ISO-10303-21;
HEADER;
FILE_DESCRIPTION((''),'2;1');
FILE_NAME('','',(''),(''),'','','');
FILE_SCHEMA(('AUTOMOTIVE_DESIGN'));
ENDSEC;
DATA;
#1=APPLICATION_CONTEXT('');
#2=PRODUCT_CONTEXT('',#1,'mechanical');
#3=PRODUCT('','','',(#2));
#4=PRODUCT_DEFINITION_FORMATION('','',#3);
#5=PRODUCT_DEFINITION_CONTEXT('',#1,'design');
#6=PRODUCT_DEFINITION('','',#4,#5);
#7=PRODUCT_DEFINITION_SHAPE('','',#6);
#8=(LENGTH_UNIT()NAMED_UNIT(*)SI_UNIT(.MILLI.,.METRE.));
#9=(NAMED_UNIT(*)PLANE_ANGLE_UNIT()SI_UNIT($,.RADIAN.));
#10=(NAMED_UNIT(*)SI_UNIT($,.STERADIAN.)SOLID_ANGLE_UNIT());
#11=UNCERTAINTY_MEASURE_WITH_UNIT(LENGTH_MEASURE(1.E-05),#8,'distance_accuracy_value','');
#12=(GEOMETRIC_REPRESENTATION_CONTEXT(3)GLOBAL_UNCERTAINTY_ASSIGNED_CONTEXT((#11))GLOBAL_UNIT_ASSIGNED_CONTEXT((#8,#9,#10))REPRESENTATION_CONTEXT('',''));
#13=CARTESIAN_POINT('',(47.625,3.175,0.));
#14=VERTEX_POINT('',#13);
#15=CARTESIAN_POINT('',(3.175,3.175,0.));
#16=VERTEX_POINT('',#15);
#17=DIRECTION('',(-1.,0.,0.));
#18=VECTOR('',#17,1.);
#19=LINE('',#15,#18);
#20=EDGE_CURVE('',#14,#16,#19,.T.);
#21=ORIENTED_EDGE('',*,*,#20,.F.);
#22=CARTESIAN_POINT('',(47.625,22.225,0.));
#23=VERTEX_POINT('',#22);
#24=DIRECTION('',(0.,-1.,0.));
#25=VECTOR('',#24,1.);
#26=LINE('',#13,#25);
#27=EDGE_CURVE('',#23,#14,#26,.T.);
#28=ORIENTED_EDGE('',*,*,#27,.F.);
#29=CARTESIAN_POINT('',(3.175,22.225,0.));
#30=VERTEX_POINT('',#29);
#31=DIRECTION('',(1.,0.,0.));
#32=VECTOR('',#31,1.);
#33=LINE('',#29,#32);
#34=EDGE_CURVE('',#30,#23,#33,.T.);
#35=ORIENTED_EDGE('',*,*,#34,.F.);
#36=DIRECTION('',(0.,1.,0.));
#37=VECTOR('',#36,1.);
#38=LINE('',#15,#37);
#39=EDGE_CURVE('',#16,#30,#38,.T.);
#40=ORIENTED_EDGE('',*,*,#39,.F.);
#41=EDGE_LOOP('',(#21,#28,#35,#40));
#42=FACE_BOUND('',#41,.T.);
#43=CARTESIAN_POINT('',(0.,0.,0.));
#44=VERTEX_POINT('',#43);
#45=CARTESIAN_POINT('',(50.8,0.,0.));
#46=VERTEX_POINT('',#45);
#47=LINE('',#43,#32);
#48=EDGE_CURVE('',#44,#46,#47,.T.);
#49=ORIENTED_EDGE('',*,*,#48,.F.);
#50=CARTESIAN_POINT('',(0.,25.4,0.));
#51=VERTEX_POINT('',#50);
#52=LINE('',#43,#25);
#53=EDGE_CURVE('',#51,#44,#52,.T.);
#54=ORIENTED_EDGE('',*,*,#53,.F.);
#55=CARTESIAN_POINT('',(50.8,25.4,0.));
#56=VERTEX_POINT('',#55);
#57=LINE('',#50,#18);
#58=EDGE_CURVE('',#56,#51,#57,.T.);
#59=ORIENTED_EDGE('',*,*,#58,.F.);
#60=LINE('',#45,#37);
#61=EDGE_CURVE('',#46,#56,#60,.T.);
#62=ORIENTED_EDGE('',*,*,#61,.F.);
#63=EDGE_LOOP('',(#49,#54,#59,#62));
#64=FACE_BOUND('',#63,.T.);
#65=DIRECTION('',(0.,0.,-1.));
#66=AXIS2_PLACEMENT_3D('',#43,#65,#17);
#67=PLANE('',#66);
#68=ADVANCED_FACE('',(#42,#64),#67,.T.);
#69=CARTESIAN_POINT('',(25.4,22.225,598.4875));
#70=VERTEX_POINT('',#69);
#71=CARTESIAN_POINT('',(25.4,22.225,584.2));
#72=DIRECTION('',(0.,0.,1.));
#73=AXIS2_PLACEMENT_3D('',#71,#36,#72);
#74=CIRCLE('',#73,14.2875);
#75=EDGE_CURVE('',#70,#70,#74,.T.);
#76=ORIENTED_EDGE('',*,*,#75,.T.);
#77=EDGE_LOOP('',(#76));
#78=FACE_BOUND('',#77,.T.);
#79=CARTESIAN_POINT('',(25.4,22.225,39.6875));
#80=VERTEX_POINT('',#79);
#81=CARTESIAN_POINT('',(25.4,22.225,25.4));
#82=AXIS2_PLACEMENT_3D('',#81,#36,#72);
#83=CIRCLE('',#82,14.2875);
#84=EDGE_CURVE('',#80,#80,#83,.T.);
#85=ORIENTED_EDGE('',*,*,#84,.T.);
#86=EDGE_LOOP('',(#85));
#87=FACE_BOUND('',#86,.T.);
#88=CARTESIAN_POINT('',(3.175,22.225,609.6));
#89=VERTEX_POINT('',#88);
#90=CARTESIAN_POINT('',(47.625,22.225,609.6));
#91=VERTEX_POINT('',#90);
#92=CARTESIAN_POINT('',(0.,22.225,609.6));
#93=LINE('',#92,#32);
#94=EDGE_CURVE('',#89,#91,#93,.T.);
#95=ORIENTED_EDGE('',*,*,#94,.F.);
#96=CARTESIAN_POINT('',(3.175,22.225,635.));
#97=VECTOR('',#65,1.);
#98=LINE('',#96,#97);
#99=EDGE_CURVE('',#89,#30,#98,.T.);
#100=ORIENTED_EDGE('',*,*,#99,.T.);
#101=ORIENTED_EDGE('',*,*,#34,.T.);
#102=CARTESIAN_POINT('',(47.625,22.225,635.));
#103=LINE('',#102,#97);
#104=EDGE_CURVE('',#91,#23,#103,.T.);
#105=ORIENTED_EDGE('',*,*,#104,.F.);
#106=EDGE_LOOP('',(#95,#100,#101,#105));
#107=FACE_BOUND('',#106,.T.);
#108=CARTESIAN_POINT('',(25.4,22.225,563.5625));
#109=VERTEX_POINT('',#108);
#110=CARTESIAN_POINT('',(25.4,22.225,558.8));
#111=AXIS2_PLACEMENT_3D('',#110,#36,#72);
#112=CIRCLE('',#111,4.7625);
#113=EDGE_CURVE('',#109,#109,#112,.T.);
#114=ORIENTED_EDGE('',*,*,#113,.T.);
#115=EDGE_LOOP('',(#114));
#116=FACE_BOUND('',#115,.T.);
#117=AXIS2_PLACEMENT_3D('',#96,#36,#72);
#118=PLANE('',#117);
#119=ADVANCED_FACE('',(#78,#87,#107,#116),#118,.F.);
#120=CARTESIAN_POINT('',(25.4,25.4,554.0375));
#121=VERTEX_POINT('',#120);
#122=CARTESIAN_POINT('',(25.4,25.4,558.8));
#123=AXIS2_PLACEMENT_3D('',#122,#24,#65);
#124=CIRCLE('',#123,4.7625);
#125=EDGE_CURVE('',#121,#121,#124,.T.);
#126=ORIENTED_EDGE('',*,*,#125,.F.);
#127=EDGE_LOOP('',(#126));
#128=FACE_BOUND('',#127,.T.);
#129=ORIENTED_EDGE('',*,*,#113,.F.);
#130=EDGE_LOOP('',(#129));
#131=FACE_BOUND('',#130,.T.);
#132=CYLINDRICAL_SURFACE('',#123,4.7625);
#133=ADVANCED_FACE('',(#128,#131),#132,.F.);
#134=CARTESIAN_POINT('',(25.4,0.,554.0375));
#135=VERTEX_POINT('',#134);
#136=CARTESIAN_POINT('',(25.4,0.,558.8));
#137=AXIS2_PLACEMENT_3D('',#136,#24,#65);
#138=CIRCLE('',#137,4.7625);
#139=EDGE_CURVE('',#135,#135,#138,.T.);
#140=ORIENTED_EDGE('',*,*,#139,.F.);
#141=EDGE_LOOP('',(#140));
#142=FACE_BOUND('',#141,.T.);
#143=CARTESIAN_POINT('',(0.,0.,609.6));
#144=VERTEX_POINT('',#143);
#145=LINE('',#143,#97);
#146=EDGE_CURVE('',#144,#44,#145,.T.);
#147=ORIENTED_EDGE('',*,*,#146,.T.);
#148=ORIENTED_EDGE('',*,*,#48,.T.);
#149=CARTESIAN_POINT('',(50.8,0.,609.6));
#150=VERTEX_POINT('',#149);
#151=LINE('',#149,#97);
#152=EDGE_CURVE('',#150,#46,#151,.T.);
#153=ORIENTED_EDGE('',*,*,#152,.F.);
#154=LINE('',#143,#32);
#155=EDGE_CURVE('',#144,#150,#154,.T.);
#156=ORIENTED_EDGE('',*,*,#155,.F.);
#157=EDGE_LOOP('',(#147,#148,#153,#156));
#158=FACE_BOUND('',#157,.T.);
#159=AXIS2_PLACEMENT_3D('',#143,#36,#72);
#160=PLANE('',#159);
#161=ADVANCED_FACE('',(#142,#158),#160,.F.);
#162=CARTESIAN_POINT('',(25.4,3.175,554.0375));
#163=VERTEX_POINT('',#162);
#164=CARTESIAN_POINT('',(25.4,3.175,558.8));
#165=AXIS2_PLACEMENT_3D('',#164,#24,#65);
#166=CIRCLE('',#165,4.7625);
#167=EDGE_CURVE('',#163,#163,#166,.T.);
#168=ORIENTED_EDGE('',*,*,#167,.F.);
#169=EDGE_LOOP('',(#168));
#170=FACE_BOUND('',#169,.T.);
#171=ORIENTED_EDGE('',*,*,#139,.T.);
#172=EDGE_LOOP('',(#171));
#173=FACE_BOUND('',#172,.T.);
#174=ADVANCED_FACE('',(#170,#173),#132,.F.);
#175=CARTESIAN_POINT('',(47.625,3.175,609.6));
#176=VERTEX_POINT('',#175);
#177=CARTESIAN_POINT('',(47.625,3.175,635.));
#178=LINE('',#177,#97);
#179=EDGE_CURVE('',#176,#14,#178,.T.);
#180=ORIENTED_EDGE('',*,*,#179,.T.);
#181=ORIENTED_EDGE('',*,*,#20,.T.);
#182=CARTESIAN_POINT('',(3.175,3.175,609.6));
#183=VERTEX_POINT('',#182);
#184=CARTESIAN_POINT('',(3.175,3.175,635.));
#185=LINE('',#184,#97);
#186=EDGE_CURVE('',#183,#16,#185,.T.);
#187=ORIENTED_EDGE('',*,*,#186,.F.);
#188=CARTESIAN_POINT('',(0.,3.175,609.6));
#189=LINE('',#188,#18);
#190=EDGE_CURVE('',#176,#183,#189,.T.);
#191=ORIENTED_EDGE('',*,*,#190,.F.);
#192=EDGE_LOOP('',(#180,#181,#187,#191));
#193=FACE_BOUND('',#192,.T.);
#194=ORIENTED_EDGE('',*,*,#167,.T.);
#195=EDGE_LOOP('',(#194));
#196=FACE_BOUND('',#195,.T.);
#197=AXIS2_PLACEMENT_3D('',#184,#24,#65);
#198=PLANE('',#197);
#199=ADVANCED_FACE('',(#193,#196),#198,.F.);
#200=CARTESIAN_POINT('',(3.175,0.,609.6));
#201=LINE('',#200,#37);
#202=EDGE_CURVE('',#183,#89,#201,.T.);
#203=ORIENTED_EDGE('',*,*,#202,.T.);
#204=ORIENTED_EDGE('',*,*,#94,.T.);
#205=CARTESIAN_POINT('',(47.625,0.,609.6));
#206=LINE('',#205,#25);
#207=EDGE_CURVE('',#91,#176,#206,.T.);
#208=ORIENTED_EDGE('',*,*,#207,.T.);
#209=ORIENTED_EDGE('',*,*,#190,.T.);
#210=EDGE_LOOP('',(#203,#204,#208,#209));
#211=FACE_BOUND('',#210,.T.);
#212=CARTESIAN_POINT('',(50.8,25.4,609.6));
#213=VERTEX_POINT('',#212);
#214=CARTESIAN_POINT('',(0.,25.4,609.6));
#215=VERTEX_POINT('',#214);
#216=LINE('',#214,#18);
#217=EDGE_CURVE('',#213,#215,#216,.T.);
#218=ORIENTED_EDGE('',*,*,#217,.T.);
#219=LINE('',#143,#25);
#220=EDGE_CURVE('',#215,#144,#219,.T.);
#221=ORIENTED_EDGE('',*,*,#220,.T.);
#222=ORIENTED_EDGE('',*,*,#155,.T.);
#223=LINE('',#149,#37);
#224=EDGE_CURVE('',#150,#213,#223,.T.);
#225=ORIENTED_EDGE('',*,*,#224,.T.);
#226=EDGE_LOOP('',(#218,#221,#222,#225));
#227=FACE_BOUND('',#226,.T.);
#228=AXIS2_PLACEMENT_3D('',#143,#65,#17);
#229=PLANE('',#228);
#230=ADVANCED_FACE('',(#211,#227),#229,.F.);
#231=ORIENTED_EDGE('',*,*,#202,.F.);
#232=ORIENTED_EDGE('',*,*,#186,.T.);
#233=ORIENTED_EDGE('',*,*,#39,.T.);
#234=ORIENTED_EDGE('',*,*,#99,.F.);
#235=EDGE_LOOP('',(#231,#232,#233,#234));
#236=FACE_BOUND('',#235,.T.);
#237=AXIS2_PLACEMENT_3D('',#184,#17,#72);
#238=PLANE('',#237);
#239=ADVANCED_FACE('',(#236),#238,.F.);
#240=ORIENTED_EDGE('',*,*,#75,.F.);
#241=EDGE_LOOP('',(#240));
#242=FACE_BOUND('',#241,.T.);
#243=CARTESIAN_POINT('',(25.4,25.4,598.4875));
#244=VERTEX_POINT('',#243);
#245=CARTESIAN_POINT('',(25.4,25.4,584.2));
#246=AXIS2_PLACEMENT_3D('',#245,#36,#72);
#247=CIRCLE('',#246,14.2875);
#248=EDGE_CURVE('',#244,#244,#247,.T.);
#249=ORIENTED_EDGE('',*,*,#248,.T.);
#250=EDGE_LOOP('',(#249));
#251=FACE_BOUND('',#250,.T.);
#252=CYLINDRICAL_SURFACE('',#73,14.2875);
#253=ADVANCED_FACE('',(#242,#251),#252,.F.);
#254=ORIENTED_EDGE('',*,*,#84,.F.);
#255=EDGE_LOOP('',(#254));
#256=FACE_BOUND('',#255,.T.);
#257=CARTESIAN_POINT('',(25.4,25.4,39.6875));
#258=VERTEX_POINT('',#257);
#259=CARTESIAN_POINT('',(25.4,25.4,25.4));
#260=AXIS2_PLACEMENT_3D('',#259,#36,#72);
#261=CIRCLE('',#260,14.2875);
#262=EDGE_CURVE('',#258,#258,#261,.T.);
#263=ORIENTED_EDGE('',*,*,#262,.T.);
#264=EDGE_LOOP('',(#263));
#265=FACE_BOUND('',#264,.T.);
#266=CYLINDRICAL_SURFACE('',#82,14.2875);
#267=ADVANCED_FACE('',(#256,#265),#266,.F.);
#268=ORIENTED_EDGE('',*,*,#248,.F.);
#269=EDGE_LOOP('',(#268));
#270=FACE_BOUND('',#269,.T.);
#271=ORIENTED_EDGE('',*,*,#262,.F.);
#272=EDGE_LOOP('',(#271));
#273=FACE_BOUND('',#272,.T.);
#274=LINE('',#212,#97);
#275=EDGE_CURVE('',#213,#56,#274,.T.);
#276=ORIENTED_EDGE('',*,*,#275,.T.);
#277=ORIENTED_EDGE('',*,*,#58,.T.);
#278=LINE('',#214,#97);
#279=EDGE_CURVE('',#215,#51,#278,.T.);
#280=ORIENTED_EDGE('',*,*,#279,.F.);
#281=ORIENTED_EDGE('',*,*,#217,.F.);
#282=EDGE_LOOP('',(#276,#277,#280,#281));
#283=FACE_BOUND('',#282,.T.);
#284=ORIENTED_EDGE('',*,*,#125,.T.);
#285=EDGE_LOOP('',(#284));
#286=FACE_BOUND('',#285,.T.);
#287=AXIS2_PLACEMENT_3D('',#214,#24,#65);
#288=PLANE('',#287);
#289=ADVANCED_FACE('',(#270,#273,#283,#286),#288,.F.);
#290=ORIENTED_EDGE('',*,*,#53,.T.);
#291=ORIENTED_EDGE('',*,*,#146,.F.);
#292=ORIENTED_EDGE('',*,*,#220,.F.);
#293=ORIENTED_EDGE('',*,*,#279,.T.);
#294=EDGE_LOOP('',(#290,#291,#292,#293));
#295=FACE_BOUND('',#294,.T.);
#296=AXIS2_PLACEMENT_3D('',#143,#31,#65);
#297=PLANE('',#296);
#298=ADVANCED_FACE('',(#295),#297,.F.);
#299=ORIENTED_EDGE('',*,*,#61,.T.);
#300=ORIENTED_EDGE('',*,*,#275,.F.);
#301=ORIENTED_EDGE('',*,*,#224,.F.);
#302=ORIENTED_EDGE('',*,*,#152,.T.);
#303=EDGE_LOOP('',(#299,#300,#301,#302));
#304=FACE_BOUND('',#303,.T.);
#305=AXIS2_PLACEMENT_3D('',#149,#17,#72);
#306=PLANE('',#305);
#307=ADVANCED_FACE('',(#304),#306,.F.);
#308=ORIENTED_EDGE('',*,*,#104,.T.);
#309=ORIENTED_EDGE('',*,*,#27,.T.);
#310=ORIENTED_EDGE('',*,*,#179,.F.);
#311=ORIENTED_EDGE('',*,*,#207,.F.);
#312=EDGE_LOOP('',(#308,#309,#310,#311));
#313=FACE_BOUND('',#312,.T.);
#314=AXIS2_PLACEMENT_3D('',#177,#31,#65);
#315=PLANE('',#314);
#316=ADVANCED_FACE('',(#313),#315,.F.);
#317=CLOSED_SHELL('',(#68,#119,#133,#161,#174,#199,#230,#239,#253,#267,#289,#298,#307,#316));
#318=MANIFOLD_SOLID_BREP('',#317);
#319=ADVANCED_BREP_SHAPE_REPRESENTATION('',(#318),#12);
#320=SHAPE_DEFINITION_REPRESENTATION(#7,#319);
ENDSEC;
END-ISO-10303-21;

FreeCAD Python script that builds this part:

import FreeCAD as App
import Part
import Sketcher
from FreeCAD import Vector
Q = App.Units.Quantity

doc = App.newDocument("Part")
body = doc.addObject("PartDesign::Body", "Body")

sketch1 = body.newObject("Sketcher::SketchObject", "Sketch")
sketch1.AttachmentSupport = (doc.getObject("XY_Plane"), [""])
sketch1.MapMode = "FlatFace"
sketch1.addGeometry(Part.LineSegment(Vector(0, 25, 0), Vector(0, 0, 0)), False)
sketch1.addGeometry(Part.LineSegment(Vector(0, 0, 0), Vector(51, 0, 0)), False)
sketch1.addGeometry(Part.LineSegment(Vector(51, 0, 0), Vector(51, 25, 0)), False)
sketch1.addGeometry(Part.LineSegment(Vector(51, 25, 0), Vector(0, 25, 0)), False)
sketch1.addConstraint(Sketcher.Constraint("Coincident", 0, 2, 1, 1))
sketch1.addConstraint(Sketcher.Constraint("Coincident", 1, 2, 2, 1))
sketch1.addConstraint(Sketcher.Constraint("Coincident", 2, 2, 3, 1))
sketch1.addConstraint(Sketcher.Constraint("Coincident", 3, 2, 0, 1))
sketch1.addConstraint(Sketcher.Constraint("Vertical", 0))
sketch1.addConstraint(Sketcher.Constraint("Horizontal", 1))
sketch1.addConstraint(Sketcher.Constraint("Vertical", 2))
sketch1.addConstraint(Sketcher.Constraint("Horizontal", 3))
sketch1.addConstraint(Sketcher.Constraint("Coincident", 0, 2, -1, 1))
sketch1.addConstraint(Sketcher.Constraint("DistanceX", 1, 1, 1, 2, Q("2 in")))
sketch1.addConstraint(Sketcher.Constraint("DistanceY", 0, 2, 0, 1, Q("1 in")))
pad1 = body.newObject("PartDesign::Pad", "Pad")
pad1.Profile = sketch1
pad1.Length = Q("24 in")

sketch2 = body.newObject("Sketcher::SketchObject", "Sketch001")
sketch2.AttachmentSupport = (doc.getObject("XY_Plane"), [""])
sketch2.MapMode = "FlatFace"
sketch2.addGeometry(Part.LineSegment(Vector(48, 22, 0), Vector(48, 3, 0)), False)
sketch2.addGeometry(Part.LineSegment(Vector(48, 3, 0), Vector(3, 3, 0)), False)
sketch2.addGeometry(Part.LineSegment(Vector(3, 3, 0), Vector(3, 22, 0)), False)
sketch2.addGeometry(Part.LineSegment(Vector(3, 22, 0), Vector(48, 22, 0)), False)
sketch2.addConstraint(Sketcher.Constraint("Coincident", 0, 2, 1, 1))
sketch2.addConstraint(Sketcher.Constraint("Coincident", 1, 2, 2, 1))
sketch2.addConstraint(Sketcher.Constraint("Coincident", 2, 2, 3, 1))
sketch2.addConstraint(Sketcher.Constraint("Coincident", 3, 2, 0, 1))
sketch2.addConstraint(Sketcher.Constraint("Vertical", 0))
sketch2.addConstraint(Sketcher.Constraint("Horizontal", 1))
sketch2.addConstraint(Sketcher.Constraint("Vertical", 2))
sketch2.addConstraint(Sketcher.Constraint("Horizontal", 3))
sketch2.addConstraint(Sketcher.Constraint("DistanceX", 1, 2, 1, 1, Q("1.75 in")))
sketch2.addConstraint(Sketcher.Constraint("DistanceY", 0, 2, 0, 1, Q("0.75 in")))
sketch2.addConstraint(Sketcher.Constraint("DistanceX", -1, 1, 0, 2, Q("1.875 in")))
sketch2.addConstraint(Sketcher.Constraint("DistanceY", -1, 1, 0, 2, Q("0.125 in")))
pocket1 = body.newObject("PartDesign::Pocket", "Pocket")
pocket1.Profile = sketch2
pocket1.Length = Q("25 in")
pocket1.Reversed = True

sketch3 = body.newObject("Sketcher::SketchObject", "Sketch002")
sketch3.AttachmentSupport = (doc.getObject("XZ_Plane"), [""])
sketch3.MapMode = "FlatFace"
sketch3.AttachmentOffset = App.Placement(Vector(0, 0, -1 * 25.4), App.Rotation())
sketch3.addGeometry(Part.Circle(Vector(25, 25, 0), Vector(0, 0, 1), 14), False)
sketch3.addConstraint(Sketcher.Constraint("Diameter", 0, Q("1.125 in")))
sketch3.addConstraint(Sketcher.Constraint("DistanceX", -1, 1, 0, 3, Q("1 in")))
sketch3.addConstraint(Sketcher.Constraint("DistanceY", -1, 1, 0, 3, Q("1 in")))
pocket2 = body.newObject("PartDesign::Pocket", "Pocket001")
pocket2.Profile = sketch3
pocket2.Length = Q("0.125 in")
pocket2.Reversed = True

sketch4 = body.newObject("Sketcher::SketchObject", "Sketch003")
sketch4.AttachmentSupport = (doc.getObject("XZ_Plane"), [""])
sketch4.MapMode = "FlatFace"
sketch4.AttachmentOffset = App.Placement(Vector(0, 0, -1 * 25.4), App.Rotation())
sketch4.addGeometry(Part.Circle(Vector(25, 584, 0), Vector(0, 0, 1), 14), False)
sketch4.addConstraint(Sketcher.Constraint("Diameter", 0, Q("1.125 in")))
sketch4.addConstraint(Sketcher.Constraint("DistanceX", -1, 1, 0, 3, Q("1 in")))
sketch4.addConstraint(Sketcher.Constraint("DistanceY", -1, 1, 0, 3, Q("23 in")))
pocket3 = body.newObject("PartDesign::Pocket", "Pocket002")
pocket3.Profile = sketch4
pocket3.Length = Q("0.125 in")
pocket3.Reversed = True

sketch5 = body.newObject("Sketcher::SketchObject", "Sketch004")
sketch5.AttachmentSupport = (doc.getObject("XZ_Plane"), [""])
sketch5.MapMode = "FlatFace"
sketch5.addGeometry(Part.Circle(Vector(25.4, 558.8, 0), Vector(0, 0, 1), 4.8), False)
sketch5.addConstraint(Sketcher.Constraint("Diameter", 0, Q("0.375 in")))
sketch5.addConstraint(Sketcher.Constraint("DistanceX", -1, 1, 0, 3, Q("1 in")))
sketch5.addConstraint(Sketcher.Constraint("DistanceY", -1, 1, 0, 3, Q("22 in")))
pocket4 = body.newObject("PartDesign::Pocket", "Pocket003")
pocket4.Profile = sketch5
pocket4.Length = Q("1 in")

doc.recompute()
